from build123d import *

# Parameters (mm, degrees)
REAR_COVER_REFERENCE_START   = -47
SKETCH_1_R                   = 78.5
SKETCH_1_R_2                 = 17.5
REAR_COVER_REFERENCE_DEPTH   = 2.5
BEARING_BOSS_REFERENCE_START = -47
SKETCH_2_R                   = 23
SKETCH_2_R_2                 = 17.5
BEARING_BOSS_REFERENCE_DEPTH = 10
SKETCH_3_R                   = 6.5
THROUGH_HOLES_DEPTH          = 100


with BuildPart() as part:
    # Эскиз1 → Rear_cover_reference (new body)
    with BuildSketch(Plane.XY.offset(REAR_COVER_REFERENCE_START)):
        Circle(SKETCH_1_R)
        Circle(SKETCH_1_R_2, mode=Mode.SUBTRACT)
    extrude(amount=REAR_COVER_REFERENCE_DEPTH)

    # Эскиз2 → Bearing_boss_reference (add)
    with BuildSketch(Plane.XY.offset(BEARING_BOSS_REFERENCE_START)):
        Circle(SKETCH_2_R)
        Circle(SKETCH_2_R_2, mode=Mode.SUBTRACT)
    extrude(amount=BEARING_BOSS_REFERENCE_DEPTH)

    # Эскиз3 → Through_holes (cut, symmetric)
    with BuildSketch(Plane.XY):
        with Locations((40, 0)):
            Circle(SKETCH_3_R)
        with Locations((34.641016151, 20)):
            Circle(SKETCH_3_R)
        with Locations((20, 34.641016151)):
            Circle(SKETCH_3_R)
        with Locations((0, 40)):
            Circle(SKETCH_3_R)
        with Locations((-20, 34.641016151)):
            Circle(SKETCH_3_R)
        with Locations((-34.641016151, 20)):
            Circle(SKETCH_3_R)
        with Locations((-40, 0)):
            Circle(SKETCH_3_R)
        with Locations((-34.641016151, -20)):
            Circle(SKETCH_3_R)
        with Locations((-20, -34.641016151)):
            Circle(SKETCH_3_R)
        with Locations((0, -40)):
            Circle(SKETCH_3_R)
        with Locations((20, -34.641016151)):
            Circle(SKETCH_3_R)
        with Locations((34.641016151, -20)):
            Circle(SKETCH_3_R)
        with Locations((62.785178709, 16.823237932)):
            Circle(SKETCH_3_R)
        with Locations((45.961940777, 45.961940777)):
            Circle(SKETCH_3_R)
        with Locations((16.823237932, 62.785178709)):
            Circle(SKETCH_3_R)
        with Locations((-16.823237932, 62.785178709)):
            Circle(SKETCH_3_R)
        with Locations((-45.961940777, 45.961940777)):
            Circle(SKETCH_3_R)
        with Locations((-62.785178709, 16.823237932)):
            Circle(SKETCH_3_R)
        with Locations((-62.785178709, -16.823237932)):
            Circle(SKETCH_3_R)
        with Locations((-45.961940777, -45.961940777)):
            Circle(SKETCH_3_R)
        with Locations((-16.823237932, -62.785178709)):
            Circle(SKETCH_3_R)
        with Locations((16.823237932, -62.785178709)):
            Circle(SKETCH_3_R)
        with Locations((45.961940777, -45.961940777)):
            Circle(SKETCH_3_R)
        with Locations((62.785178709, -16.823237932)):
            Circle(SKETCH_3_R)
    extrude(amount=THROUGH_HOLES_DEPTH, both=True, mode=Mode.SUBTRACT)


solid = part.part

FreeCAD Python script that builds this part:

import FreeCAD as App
import Part
import Sketcher

doc = App.newDocument("Part")
body = doc.addObject("PartDesign::Body", "Body")

sketch1 = body.newObject("Sketcher::SketchObject", "Sketch")
sketch1.AttachmentSupport = (doc.getObject("XY_Plane"), [""])
sketch1.MapMode = "FlatFace"
sketch1.AttachmentOffset = App.Placement(App.Vector(0, 0, -47), App.Rotation())
sketch1.addGeometry([
    Part.Circle(App.Vector(0, 0, 0), App.Vector(0, 0, 1), 78),
    Part.Circle(App.Vector(0, 0, 0), App.Vector(0, 0, 1), 18),
], False)
sketch1.addConstraint([
    Sketcher.Constraint("Coincident", 0, 3, -1, 1),
    Sketcher.Constraint("Coincident", 1, 3, -1, 1),
    Sketcher.Constraint("Diameter", 0, 157.0),
    Sketcher.Constraint("Diameter", 1, 35.0),
])
pad1 = body.newObject("PartDesign::Pad", "Pad")
pad1.Profile = sketch1
pad1.Length = 2.5

sketch2 = body.newObject("Sketcher::SketchObject", "Sketch001")
sketch2.AttachmentSupport = (doc.getObject("XY_Plane"), [""])
sketch2.MapMode = "FlatFace"
sketch2.AttachmentOffset = App.Placement(App.Vector(0, 0, -47), App.Rotation())
sketch2.addGeometry([
    Part.Circle(App.Vector(0, 0, 0), App.Vector(0, 0, 1), 23),
    Part.Circle(App.Vector(0, 0, 0), App.Vector(0, 0, 1), 18),
], False)
sketch2.addConstraint([
    Sketcher.Constraint("Coincident", 0, 3, -1, 1),
    Sketcher.Constraint("Coincident", 1, 3, -1, 1),
    Sketcher.Constraint("Diameter", 0, 46.0),
    Sketcher.Constraint("Diameter", 1, 35.0),
])
pad2 = body.newObject("PartDesign::Pad", "Pad001")
pad2.Profile = sketch2
pad2.Length = 10

sketch3 = body.newObject("Sketcher::SketchObject", "Sketch002")
sketch3.AttachmentSupport = (doc.getObject("XY_Plane"), [""])
sketch3.MapMode = "FlatFace"
sketch3.addGeometry([
    Part.Circle(App.Vector(40, 0, 0), App.Vector(0, 0, 1), 6),
    Part.Circle(App.Vector(35, 20, 0), App.Vector(0, 0, 1), 6),
    Part.Circle(App.Vector(20, 35, 0), App.Vector(0, 0, 1), 6),
    Part.Circle(App.Vector(0, 40, 0), App.Vector(0, 0, 1), 6),
    Part.Circle(App.Vector(-20, 35, 0), App.Vector(0, 0, 1), 6),
    Part.Circle(App.Vector(-35, 20, 0), App.Vector(0, 0, 1), 6),
    Part.Circle(App.Vector(-40, 0, 0), App.Vector(0, 0, 1), 6),
    Part.Circle(App.Vector(-35, -20, 0), App.Vector(0, 0, 1), 6),
    Part.Circle(App.Vector(-20, -35, 0), App.Vector(0, 0, 1), 6),
    Part.Circle(App.Vector(0, -40, 0), App.Vector(0, 0, 1), 6),
    Part.Circle(App.Vector(20, -35, 0), App.Vector(0, 0, 1), 6),
    Part.Circle(App.Vector(35, -20, 0), App.Vector(0, 0, 1), 6),
    Part.Circle(App.Vector(63, 17, 0), App.Vector(0, 0, 1), 6),
    Part.Circle(App.Vector(46, 46, 0), App.Vector(0, 0, 1), 6),
    Part.Circle(App.Vector(17, 63, 0), App.Vector(0, 0, 1), 6),
    Part.Circle(App.Vector(-17, 63, 0), App.Vector(0, 0, 1), 6),
    Part.Circle(App.Vector(-46, 46, 0), App.Vector(0, 0, 1), 6),
    Part.Circle(App.Vector(-63, 17, 0), App.Vector(0, 0, 1), 6),
    Part.Circle(App.Vector(-63, -17, 0), App.Vector(0, 0, 1), 6),
    Part.Circle(App.Vector(-46, -46, 0), App.Vector(0, 0, 1), 6),
    Part.Circle(App.Vector(-17, -63, 0), App.Vector(0, 0, 1), 6),
    Part.Circle(App.Vector(17, -63, 0), App.Vector(0, 0, 1), 6),
    Part.Circle(App.Vector(46, -46, 0), App.Vector(0, 0, 1), 6),
    Part.Circle(App.Vector(63, -17, 0), App.Vector(0, 0, 1), 6),
], False)
sketch3.addConstraint([
    Sketcher.Constraint("Equal", 0, 1),
    Sketcher.Constraint("Equal", 1, 2),
    Sketcher.Constraint("Equal", 2, 3),
    Sketcher.Constraint("Equal", 3, 4),
    Sketcher.Constraint("Equal", 4, 5),
    Sketcher.Constraint("Equal", 5, 6),
    Sketcher.Constraint("Equal", 6, 7),
    Sketcher.Constraint("Equal", 7, 8),
    Sketcher.Constraint("Equal", 8, 9),
    Sketcher.Constraint("Equal", 9, 10),
    Sketcher.Constraint("Equal", 10, 11),
    Sketcher.Constraint("Equal", 11, 12),
    Sketcher.Constraint("Equal", 12, 13),
    Sketcher.Constraint("Equal", 13, 14),
    Sketcher.Constraint("Equal", 14, 15),
    Sketcher.Constraint("Equal", 15, 16),
    Sketcher.Constraint("Equal", 16, 17),
    Sketcher.Constraint("Equal", 17, 18),
    Sketcher.Constraint("Equal", 18, 19),
    Sketcher.Constraint("Equal", 19, 20),
    Sketcher.Constraint("Equal", 20, 21),
    Sketcher.Constraint("Equal", 21, 22),
    Sketcher.Constraint("Equal", 22, 23),
    Sketcher.Constraint("Symmetric", 0, 3, 6, 3, -1, 1),
    Sketcher.Constraint("Symmetric", 1, 3, 7, 3, -1, 1),
    Sketcher.Constraint("Symmetric", 2, 3, 8, 3, -1, 1),
    Sketcher.Constraint("Symmetric", 3, 3, 9, 3, -1, 1),
    Sketcher.Constraint("Symmetric", 4, 3, 10, 3, -1, 1),
    Sketcher.Constraint("Symmetric", 5, 3, 11, 3, -1, 1),
    Sketcher.Constraint("Symmetric", 12, 3, 18, 3, -1, 1),
    Sketcher.Constraint("Symmetric", 13, 3, 19, 3, -1, 1),
    Sketcher.Constraint("Symmetric", 14, 3, 20, 3, -1, 1),
    Sketcher.Constraint("Symmetric", 15, 3, 21, 3, -1, 1),
    Sketcher.Constraint("Symmetric", 16, 3, 22, 3, -1, 1),
    Sketcher.Constraint("Symmetric", 17, 3, 23, 3, -1, 1),
    Sketcher.Constraint("Symmetric", 2, 3, 4, 3, -2),
    Sketcher.Constraint("Symmetric", 1, 3, 5, 3, -2),
    Sketcher.Constraint("Symmetric", 14, 3, 15, 3, -2),
    Sketcher.Constraint("Symmetric", 13, 3, 16, 3, -2),
    Sketcher.Constraint("Symmetric", 12, 3, 17, 3, -2),
    Sketcher.Constraint("PointOnObject", 0, 3, -1),
    Sketcher.Constraint("PointOnObject", 3, 3, -2),
    Sketcher.Constraint("Diameter", 0, 13.0),
    Sketcher.Constraint("DistanceX", -1, 1, 0, 3, 40.0),
    Sketcher.Constraint("DistanceY", -1, 1, 1, 3, 20.0),
    Sketcher.Constraint("DistanceX", -1, 1, 2, 3, 20.0),
    Sketcher.Constraint("DistanceY", -1, 1, 3, 3, 40.0),
    Sketcher.Constraint("DistanceX", -1, 1, 12, 3, 62.785179),
    Sketcher.Constraint("DistanceX", -1, 1, 13, 3, 45.961941),
    Sketcher.Constraint("DistanceY", -1, 1, 13, 3, 45.961941),
    Sketcher.Constraint("DistanceY", -1, 1, 14, 3, 62.785179),
    Sketcher.Constraint("DistanceY", 12, 3, 2, 3, 17.817778),
    Sketcher.Constraint("DistanceX", 14, 3, 1, 3, 17.817778),
    Sketcher.Constraint("DistanceX", -1, 1, 1, 3, 34.641016),
    Sketcher.Constraint("DistanceY", -1, 1, 2, 3, 34.641016),
])
pocket1 = body.newObject("PartDesign::Pocket", "Pocket")
pocket1.Profile = sketch3
pocket1.Length = 200
pocket1.Midplane = True

doc.recompute()
